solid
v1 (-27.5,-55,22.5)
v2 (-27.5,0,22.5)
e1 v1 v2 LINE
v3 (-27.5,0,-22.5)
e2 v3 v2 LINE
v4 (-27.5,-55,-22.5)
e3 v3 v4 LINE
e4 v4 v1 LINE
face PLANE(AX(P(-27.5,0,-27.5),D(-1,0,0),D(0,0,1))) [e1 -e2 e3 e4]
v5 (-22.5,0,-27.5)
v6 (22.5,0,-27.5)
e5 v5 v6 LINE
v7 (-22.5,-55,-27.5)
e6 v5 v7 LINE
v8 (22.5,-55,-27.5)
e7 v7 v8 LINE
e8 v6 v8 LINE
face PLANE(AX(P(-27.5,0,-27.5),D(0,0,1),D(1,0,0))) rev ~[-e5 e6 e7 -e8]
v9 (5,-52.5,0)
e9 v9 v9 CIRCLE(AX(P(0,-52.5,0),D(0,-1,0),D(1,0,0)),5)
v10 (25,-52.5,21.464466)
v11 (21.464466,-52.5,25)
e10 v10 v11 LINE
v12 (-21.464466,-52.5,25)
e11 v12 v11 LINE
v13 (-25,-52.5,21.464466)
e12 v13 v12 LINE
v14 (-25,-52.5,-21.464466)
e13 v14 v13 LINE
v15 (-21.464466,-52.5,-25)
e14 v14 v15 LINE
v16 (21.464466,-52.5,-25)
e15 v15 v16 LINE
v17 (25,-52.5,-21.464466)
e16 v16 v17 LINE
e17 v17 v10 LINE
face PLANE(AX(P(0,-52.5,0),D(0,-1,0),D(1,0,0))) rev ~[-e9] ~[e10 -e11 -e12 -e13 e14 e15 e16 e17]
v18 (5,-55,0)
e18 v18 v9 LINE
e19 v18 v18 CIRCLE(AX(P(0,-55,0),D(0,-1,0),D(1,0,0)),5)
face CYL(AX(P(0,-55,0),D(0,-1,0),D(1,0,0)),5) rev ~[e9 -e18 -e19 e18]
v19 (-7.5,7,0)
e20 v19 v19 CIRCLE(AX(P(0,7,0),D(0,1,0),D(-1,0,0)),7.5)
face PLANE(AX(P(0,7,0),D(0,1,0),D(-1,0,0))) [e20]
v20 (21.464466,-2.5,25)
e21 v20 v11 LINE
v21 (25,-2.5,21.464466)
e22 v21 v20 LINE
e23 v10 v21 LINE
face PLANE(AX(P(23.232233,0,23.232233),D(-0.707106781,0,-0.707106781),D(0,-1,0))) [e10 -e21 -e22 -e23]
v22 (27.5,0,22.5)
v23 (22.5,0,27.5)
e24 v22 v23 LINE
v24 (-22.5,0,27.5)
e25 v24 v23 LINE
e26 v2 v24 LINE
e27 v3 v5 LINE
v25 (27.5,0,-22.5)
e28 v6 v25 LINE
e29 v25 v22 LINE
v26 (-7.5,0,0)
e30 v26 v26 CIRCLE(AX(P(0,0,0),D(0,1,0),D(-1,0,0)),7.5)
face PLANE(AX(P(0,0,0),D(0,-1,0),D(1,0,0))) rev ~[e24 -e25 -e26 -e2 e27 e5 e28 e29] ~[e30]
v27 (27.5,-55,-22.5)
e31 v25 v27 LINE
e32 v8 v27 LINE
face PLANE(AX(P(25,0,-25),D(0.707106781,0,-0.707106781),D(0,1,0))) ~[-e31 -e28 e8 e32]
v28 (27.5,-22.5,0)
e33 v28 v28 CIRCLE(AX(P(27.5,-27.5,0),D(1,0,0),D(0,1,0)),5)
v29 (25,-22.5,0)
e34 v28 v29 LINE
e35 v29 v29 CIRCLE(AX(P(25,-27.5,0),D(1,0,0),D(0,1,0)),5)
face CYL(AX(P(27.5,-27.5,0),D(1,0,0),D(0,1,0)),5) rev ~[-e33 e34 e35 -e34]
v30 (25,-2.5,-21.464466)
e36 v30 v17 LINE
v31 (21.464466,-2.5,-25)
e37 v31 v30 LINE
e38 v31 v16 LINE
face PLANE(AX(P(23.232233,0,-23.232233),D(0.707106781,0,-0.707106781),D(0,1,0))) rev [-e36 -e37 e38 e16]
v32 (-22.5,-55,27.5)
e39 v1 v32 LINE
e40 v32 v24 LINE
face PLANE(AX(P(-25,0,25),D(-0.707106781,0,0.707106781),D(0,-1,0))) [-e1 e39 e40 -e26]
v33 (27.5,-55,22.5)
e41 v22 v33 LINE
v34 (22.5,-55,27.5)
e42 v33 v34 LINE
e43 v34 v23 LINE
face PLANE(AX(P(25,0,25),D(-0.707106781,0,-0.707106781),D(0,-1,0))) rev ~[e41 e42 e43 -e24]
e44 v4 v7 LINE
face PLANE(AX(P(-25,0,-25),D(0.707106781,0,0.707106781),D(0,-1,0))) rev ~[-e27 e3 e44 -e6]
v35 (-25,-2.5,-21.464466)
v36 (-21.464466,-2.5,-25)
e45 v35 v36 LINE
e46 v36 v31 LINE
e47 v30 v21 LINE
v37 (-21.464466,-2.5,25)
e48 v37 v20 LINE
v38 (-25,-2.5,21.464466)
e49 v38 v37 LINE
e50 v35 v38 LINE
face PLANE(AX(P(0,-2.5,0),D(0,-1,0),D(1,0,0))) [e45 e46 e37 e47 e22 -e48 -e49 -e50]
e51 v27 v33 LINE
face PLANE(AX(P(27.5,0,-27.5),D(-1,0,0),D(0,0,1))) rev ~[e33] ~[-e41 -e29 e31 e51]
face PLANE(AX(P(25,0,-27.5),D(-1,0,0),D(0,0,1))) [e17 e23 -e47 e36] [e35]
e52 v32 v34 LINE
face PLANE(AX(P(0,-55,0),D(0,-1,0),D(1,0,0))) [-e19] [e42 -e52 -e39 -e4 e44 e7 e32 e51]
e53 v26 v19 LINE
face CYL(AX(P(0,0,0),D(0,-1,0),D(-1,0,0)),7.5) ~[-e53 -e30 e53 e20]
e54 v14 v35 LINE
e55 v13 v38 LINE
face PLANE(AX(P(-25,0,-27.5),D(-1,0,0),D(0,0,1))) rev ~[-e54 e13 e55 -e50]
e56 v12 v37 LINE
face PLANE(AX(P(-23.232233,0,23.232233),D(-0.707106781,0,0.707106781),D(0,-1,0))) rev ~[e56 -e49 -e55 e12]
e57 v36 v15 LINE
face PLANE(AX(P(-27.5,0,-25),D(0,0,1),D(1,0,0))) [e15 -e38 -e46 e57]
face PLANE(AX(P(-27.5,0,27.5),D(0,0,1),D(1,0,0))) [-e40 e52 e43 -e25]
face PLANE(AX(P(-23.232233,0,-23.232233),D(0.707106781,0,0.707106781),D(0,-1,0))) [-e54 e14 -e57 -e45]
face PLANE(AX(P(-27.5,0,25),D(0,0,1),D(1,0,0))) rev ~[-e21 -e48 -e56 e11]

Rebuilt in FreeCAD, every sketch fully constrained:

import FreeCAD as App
import Part
import Sketcher


def edges_at(feature, points):
    """Names of the edges that pass closest to the given points."""
    edges = feature.Shape.Edges
    near = lambda p: min(range(len(edges)), key=lambda i: edges[i].distToShape(Part.Vertex(*p))[0])
    return sorted({f"Edge{near(p) + 1}" for p in points})


def faces_at(feature, points):
    """Names of the faces that lie closest to the given points."""
    faces = feature.Shape.Faces
    near = lambda p: min(range(len(faces)), key=lambda i: faces[i].distToShape(Part.Vertex(*p))[0])
    return sorted({f"Face{near(p) + 1}" for p in points})


def add_polygon(sketch, points):
    """Adds a closed chain of lines whose ends are joined by coincident constraints."""
    first, n = sketch.GeometryCount, len(points)
    for a, b in zip(points, points[1:] + points[:1]):
        sketch.addGeometry(Part.LineSegment(App.Vector(*a, 0), App.Vector(*b, 0)), False)
    for i in range(n):
        sketch.addConstraint(Sketcher.Constraint("Coincident", first + i, 2, first + (i + 1) % n, 1))

doc = App.newDocument("Part")
body = doc.addObject("PartDesign::Body", "Body")

# Sketch on XZ plane
sketch1 = doc.addObject("Sketcher::SketchObject", "Sketch")
body.addObject(sketch1)
sketch1.AttachmentSupport = (doc.XZ_Plane, [""])
sketch1.MapMode = "FlatFace"
add_polygon(sketch1, [(-28, 28), (-28, -28), (28, -28), (28, 28)])  # lines 0-3
sketch1.addConstraint(Sketcher.Constraint("Vertical", 0))
sketch1.addConstraint(Sketcher.Constraint("Horizontal", 1))
sketch1.addConstraint(Sketcher.Constraint("Vertical", 2))
sketch1.addConstraint(Sketcher.Constraint("Horizontal", 3))
sketch1.addConstraint(Sketcher.Constraint("Symmetric", 0, 2, 2, 2, -1, 1))
sketch1.addConstraint(Sketcher.Constraint("Equal", 3, 0))
sketch1.addConstraint(Sketcher.Constraint("DistanceX", 1, 1, 1, 2, 55.0))
pad1 = doc.addObject("PartDesign::Pad", "Pad")
body.addObject(pad1)
pad1.Profile = sketch1
pad1.Length = 55
doc.recompute()

chamfer = doc.addObject("PartDesign::Chamfer", "Chamfer")
body.addObject(chamfer)
chamfer.Base = (pad1, edges_at(pad1, [
    (27.5, -27.5, 27.5),
    (-27.5, -27.5, 27.5),
    (27.5, -27.5, -27.5),
    (-27.5, -27.5, -27.5),
]))
chamfer.Size = 5
doc.recompute()

thickness = doc.addObject("PartDesign::Thickness", "Thickness")
body.addObject(thickness)
thickness.Base = (chamfer, faces_at(chamfer, [(0, -55, 0)]))
thickness.Value = 2.5
thickness.Reversed = True
thickness.Join = "Arc"

# Sketch on XZ plane
sketch2 = doc.addObject("Sketcher::SketchObject", "Sketch001")
body.addObject(sketch2)
sketch2.AttachmentSupport = (doc.XZ_Plane, [""])
sketch2.MapMode = "FlatFace"
sketch2.AttachmentOffset = App.Placement(App.Vector(0, 0, 55), App.Rotation())
add_polygon(sketch2, [(28, 22), (22, 28), (-22, 28), (-28, 22), (-28, -22), (-22, -28), (22, -28), (28, -22)])  # lines 0-7
sketch2.addConstraint(Sketcher.Constraint("Horizontal", 1))
sketch2.addConstraint(Sketcher.Constraint("Vertical", 3))
sketch2.addConstraint(Sketcher.Constraint("Horizontal", 5))
sketch2.addConstraint(Sketcher.Constraint("Vertical", 7))
sketch2.addConstraint(Sketcher.Constraint("Symmetric", 0, 2, 4, 2, -1, 1))
sketch2.addConstraint(Sketcher.Constraint("Symmetric", 2, 2, 6, 2, -1, 1))
sketch2.addConstraint(Sketcher.Constraint("Perpendicular", 0, 2))
sketch2.addConstraint(Sketcher.Constraint("Perpendicular", 2, 4))
sketch2.addConstraint(Sketcher.Constraint("Perpendicular", 4, 6))
sketch2.addConstraint(Sketcher.Constraint("Horizontal", 3, 2, 6, 2))
sketch2.addConstraint(Sketcher.Constraint("Vertical", 1, 2, 4, 2))
sketch2.addConstraint(Sketcher.Constraint("Equal", 5, 3))
sketch2.addConstraint(Sketcher.Constraint("DistanceX", 1, 2, 1, 1, 45.0))
sketch2.addConstraint(Sketcher.Constraint("DistanceX", 2, 2, 1, 2, 5.0))
pad2 = doc.addObject("PartDesign::Pad", "Pad001")
body.addObject(pad2)
pad2.Profile = sketch2
pad2.Length = 2.5
pad2.Reversed = True

# Sketch on YZ plane
sketch3 = doc.addObject("Sketcher::SketchObject", "Sketch002")
body.addObject(sketch3)
sketch3.AttachmentSupport = (doc.YZ_Plane, [""])
sketch3.MapMode = "FlatFace"
sketch3.AttachmentOffset = App.Placement(App.Vector(0, 0, 27.5), App.Rotation())
sketch3.addGeometry(Part.Circle(App.Vector(-28, 0, 0), App.Vector(0, 0, 1), 5), False)
sketch3.addConstraint(Sketcher.Constraint("PointOnObject", 0, 3, -1))
sketch3.addConstraint(Sketcher.Constraint("Diameter", 0, 10.0))
sketch3.addConstraint(Sketcher.Constraint("DistanceX", 0, 3, -1, 1, 27.5))
pocket1 = doc.addObject("PartDesign::Pocket", "Pocket")
body.addObject(pocket1)
pocket1.Profile = sketch3
pocket1.Length = 2.5

# Sketch on XZ plane
sketch4 = doc.addObject("Sketcher::SketchObject", "Sketch003")
body.addObject(sketch4)
sketch4.AttachmentSupport = (doc.XZ_Plane, [""])
sketch4.MapMode = "FlatFace"
sketch4.AttachmentOffset = App.Placement(App.Vector(0, 0, 55), App.Rotation())
sketch4.addGeometry(Part.Circle(App.Vector(0, 0, 0), App.Vector(0, 0, 1), 5), False)
sketch4.addConstraint(Sketcher.Constraint("Coincident", 0, 3, -1, 1))
sketch4.addConstraint(Sketcher.Constraint("Diameter", 0, 10.0))
pocket2 = doc.addObject("PartDesign::Pocket", "Pocket001")
body.addObject(pocket2)
pocket2.Profile = sketch4
pocket2.Length = 2.5

# Sketch on XZ plane
sketch5 = doc.addObject("Sketcher::SketchObject", "Sketch004")
body.addObject(sketch5)
sketch5.AttachmentSupport = (doc.XZ_Plane, [""])
sketch5.MapMode = "FlatFace"
sketch5.addGeometry(Part.Circle(App.Vector(0, 0, 0), App.Vector(0, 0, 1), 8), False)
sketch5.addConstraint(Sketcher.Constraint("Coincident", 0, 3, -1, 1))
sketch5.addConstraint(Sketcher.Constraint("Diameter", 0, 15.0))
pad3 = doc.addObject("PartDesign::Pad", "Pad002")
body.addObject(pad3)
pad3.Profile = sketch5
pad3.Length = 7
pad3.Reversed = True

doc.recompute()
